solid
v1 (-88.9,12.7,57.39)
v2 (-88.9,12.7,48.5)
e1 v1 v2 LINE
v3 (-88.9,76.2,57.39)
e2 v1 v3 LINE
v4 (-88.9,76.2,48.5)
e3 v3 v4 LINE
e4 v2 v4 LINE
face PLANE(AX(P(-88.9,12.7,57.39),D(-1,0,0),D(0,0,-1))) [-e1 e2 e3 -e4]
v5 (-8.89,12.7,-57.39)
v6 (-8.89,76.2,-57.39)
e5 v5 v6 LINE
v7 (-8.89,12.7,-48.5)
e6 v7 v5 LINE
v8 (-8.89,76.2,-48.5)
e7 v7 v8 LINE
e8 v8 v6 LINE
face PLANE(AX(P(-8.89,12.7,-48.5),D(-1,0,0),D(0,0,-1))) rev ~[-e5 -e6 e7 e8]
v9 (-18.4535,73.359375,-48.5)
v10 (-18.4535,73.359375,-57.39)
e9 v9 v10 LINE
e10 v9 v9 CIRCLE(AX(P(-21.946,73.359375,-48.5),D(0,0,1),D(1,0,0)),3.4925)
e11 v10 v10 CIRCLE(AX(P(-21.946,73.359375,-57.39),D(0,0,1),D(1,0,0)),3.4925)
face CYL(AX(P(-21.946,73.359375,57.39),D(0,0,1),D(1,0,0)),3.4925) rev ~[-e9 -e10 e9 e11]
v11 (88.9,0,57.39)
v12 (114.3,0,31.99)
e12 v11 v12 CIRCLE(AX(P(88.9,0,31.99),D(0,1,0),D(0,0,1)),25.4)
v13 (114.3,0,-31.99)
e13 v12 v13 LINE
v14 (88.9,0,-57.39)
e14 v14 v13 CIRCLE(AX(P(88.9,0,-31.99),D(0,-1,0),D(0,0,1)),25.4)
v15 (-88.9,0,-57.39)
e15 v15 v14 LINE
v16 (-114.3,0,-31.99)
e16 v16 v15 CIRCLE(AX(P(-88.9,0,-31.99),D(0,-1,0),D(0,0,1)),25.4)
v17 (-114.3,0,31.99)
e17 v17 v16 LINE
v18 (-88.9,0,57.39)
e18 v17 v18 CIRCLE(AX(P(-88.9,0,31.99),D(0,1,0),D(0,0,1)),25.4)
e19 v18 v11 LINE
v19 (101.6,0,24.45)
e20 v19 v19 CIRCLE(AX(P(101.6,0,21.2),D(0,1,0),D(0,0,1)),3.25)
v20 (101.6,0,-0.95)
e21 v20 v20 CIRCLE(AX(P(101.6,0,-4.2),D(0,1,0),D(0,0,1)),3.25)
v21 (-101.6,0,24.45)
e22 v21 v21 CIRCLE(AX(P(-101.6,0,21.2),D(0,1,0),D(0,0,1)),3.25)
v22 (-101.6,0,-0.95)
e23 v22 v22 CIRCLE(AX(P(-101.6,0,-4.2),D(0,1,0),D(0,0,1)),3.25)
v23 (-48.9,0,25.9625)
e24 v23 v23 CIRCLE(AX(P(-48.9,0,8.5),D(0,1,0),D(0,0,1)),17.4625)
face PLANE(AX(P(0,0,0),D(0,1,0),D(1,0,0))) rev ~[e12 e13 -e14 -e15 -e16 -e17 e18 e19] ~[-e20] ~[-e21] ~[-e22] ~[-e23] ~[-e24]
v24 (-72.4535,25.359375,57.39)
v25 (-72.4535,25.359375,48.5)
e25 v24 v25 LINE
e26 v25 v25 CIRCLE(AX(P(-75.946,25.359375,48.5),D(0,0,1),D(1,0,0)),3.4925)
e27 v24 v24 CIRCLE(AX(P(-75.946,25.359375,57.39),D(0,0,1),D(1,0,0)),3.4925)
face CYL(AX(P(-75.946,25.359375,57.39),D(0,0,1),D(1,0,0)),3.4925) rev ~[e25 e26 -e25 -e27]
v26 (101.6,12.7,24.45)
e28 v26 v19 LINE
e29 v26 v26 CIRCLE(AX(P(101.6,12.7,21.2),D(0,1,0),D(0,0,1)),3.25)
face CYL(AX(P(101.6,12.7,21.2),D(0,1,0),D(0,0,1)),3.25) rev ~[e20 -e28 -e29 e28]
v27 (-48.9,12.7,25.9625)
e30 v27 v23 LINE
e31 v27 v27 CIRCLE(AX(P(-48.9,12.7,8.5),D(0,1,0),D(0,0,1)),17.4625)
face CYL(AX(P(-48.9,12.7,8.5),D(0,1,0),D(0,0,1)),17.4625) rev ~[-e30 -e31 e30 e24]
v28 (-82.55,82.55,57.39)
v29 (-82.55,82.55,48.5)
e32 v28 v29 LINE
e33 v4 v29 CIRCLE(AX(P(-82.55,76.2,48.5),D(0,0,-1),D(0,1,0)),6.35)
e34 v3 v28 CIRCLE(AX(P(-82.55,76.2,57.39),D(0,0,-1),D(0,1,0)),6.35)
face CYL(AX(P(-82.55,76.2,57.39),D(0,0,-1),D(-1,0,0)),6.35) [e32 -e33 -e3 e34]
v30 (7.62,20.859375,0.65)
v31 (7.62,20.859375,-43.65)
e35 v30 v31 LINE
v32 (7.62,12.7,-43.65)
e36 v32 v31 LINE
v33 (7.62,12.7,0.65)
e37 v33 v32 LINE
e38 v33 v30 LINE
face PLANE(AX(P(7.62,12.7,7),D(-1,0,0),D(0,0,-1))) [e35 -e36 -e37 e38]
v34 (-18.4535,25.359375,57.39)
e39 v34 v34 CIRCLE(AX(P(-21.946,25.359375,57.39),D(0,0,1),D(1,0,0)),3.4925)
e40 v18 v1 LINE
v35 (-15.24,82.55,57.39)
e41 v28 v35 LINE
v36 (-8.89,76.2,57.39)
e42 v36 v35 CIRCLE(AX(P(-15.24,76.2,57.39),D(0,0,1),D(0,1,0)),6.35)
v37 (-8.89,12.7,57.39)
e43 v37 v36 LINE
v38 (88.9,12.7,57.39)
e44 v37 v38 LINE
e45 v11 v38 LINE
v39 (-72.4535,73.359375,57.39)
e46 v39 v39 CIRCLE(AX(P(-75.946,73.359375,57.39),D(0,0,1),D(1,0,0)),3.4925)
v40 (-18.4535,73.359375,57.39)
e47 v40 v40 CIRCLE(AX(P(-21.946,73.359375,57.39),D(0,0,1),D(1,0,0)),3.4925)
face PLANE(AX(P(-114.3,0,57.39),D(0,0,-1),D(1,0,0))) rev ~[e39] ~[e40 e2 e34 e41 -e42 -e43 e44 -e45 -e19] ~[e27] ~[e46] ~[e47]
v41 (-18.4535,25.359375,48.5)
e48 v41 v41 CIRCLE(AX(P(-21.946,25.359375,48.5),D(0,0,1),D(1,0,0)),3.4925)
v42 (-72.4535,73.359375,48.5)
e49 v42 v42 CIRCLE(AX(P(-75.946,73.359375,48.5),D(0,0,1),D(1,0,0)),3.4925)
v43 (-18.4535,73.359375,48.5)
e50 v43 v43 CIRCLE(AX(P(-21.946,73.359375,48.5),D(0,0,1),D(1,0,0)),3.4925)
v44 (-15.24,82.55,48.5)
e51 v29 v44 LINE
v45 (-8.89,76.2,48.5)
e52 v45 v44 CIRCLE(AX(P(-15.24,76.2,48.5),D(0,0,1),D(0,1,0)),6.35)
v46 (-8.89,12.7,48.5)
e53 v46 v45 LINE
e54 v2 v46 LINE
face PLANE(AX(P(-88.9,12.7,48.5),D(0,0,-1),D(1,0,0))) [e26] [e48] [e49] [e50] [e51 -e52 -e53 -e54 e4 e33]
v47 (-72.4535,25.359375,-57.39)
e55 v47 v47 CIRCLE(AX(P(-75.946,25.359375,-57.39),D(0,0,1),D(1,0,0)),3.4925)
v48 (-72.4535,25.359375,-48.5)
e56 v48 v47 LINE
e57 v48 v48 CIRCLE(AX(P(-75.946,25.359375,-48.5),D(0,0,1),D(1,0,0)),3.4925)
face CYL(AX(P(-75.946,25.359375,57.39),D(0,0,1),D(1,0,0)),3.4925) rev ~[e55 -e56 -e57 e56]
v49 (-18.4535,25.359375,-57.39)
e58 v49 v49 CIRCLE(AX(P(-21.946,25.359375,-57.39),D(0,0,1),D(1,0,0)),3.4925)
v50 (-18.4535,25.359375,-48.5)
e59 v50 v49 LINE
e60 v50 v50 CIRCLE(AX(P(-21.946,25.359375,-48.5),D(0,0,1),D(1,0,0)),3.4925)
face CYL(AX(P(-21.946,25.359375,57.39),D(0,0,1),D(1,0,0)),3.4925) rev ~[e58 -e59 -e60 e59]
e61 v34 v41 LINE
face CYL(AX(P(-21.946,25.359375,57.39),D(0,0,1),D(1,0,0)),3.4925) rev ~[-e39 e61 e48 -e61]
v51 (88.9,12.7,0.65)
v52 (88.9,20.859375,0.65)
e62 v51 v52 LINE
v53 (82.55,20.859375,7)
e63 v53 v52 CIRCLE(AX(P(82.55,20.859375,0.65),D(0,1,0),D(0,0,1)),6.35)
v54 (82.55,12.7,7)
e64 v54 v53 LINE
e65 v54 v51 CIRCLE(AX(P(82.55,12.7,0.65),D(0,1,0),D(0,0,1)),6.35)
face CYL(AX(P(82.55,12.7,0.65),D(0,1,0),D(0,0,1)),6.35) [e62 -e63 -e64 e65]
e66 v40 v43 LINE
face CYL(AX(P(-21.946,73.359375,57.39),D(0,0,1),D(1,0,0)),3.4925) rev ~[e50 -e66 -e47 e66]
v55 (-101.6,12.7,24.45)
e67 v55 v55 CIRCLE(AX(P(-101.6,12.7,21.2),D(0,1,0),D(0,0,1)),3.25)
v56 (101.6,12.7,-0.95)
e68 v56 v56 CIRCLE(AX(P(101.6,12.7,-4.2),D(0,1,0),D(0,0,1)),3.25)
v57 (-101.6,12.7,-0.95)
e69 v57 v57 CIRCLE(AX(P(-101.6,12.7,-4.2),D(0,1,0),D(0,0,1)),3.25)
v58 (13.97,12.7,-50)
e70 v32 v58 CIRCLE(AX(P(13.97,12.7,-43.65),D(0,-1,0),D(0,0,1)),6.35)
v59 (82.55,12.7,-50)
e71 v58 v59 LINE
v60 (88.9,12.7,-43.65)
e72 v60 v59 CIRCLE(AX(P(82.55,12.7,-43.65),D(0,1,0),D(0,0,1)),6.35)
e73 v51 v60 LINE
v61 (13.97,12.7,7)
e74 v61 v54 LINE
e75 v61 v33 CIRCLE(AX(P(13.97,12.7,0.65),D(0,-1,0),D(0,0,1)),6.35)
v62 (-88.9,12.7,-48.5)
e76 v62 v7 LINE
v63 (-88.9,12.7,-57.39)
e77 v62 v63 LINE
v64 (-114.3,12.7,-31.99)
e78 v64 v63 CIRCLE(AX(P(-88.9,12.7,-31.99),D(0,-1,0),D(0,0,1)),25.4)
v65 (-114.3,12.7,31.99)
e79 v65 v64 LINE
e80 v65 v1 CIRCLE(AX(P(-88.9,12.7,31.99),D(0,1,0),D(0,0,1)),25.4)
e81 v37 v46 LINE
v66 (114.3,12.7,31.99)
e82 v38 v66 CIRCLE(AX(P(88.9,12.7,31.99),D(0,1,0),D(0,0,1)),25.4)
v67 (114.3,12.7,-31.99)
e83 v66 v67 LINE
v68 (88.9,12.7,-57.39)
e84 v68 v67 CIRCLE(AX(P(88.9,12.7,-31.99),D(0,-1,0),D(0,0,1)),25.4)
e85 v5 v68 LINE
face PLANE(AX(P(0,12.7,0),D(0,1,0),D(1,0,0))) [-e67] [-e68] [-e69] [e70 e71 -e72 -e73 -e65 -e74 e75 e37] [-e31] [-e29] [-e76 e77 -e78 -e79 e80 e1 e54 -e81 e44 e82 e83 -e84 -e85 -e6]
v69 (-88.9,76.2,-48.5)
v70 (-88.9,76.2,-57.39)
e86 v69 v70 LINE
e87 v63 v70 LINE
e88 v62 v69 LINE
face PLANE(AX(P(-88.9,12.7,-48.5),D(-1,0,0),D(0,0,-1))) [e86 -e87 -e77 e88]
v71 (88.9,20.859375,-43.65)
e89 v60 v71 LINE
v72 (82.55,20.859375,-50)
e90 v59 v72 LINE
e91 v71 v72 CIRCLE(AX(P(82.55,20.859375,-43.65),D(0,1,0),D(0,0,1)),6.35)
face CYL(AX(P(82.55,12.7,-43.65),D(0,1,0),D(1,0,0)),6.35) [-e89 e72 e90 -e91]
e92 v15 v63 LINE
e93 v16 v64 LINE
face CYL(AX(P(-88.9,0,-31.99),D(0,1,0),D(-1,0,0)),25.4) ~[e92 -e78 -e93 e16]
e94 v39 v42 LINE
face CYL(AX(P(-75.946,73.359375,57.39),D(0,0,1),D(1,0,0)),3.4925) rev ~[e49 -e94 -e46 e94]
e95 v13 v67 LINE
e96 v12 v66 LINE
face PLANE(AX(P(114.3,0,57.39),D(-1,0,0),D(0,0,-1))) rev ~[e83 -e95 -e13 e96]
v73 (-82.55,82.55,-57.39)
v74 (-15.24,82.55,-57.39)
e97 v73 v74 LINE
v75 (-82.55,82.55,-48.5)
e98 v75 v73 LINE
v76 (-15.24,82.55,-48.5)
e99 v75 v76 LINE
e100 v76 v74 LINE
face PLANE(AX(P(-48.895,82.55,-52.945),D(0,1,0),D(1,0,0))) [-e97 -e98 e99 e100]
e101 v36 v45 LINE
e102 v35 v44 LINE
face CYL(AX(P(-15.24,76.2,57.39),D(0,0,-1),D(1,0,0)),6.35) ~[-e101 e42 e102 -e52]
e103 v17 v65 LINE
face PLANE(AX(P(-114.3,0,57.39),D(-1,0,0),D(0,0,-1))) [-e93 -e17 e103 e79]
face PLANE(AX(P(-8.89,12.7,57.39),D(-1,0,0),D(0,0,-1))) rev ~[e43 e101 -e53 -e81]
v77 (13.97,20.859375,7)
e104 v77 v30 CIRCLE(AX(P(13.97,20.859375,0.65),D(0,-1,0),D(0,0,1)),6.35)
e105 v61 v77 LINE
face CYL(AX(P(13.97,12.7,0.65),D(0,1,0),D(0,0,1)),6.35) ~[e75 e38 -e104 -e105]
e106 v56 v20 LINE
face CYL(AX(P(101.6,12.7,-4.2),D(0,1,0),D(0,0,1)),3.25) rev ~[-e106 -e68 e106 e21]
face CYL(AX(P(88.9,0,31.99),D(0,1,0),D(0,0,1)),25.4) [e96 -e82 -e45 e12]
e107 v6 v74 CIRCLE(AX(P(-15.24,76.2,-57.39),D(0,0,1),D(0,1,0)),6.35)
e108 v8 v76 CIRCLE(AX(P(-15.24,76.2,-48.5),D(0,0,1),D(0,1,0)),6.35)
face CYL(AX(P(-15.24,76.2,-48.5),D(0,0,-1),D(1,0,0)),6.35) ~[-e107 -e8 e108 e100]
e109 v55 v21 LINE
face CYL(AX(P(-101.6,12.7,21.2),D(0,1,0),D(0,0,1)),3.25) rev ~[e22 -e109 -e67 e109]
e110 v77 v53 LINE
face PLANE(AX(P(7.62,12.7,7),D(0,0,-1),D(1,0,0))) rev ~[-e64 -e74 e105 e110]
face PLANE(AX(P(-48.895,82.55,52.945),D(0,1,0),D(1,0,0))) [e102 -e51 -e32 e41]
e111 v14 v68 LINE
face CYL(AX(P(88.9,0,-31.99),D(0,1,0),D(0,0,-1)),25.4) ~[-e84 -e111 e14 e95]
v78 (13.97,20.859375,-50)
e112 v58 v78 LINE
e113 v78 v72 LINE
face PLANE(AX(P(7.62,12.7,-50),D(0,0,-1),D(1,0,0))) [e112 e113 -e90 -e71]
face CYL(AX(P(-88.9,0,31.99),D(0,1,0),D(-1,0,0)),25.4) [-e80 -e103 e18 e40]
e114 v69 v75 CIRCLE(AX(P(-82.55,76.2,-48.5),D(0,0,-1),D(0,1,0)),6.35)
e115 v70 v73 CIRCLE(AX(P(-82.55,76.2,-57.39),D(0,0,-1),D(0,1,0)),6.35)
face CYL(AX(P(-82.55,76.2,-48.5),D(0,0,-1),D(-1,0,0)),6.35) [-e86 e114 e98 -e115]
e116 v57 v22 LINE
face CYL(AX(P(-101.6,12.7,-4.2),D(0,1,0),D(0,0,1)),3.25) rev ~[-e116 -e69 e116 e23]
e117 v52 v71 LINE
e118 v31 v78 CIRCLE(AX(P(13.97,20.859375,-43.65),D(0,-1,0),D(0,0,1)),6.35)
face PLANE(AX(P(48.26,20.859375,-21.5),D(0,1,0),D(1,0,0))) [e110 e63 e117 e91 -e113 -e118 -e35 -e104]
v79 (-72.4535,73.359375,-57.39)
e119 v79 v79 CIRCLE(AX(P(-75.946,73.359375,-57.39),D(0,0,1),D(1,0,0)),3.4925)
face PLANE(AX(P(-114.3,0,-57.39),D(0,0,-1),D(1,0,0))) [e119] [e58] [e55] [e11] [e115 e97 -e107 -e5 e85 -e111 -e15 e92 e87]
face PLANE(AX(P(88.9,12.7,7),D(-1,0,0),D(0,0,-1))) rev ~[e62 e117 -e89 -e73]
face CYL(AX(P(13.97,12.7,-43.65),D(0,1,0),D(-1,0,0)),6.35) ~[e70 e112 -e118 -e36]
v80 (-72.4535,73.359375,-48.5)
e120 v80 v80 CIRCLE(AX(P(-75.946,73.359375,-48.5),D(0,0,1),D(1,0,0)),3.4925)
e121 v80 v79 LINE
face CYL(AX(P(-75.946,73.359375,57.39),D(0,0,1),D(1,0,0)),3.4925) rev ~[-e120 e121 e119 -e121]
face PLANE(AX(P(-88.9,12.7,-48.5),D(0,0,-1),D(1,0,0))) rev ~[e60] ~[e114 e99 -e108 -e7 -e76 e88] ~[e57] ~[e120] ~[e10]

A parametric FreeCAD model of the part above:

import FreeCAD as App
import Part
import Sketcher
from FreeCAD import Vector
Q = App.Units.Quantity


def edges_at(feature, points):
    """Names of the edges that pass closest to the given points."""
    edges = feature.Shape.Edges
    near = lambda p: min(range(len(edges)), key=lambda i: edges[i].distToShape(Part.Vertex(*p))[0])
    return sorted({f"Edge{near(p) + 1}" for p in points})


def add_polygon(sketch, points):
    """Adds a closed chain of lines whose ends are joined by coincident constraints."""
    first, n = sketch.GeometryCount, len(points)
    for a, b in zip(points, points[1:] + points[:1]):
        sketch.addGeometry(Part.LineSegment(App.Vector(*a, 0), App.Vector(*b, 0)), False)
    for i in range(n):
        sketch.addConstraint(Sketcher.Constraint("Coincident", first + i, 2, first + (i + 1) % n, 1))

doc = App.newDocument("Part")
body = doc.addObject("PartDesign::Body", "Body")

sketch1 = body.newObject("Sketcher::SketchObject", "Sketch")
sketch1.AttachmentSupport = (doc.getObject("XZ_Plane"), [""])
sketch1.MapMode = "FlatFace"
add_polygon(sketch1, [(-114, -57), (-114, 57), (114, 57), (114, -57)])
sketch1.addConstraint([
    Sketcher.Constraint("Vertical", 0),
    Sketcher.Constraint("Horizontal", 1),
    Sketcher.Constraint("Vertical", 2),
    Sketcher.Constraint("Horizontal", 3),
    Sketcher.Constraint("Symmetric", 0, 2, 2, 2, -1, 1),
    Sketcher.Constraint("DistanceX", 1, 1, 1, 2, Q("9 in")),
    Sketcher.Constraint("DistanceY", 0, 1, 0, 2, 114.78),
])
pad1 = body.newObject("PartDesign::Pad", "Pad")
pad1.Profile = sketch1
pad1.Length = Q("0.5 in")
pad1.Reversed = True

sketch2 = body.newObject("Sketcher::SketchObject", "Sketch001")
sketch2.AttachmentSupport = (doc.getObject("XZ_Plane"), [""])
sketch2.MapMode = "FlatFace"
sketch2.AttachmentOffset = App.Placement(Vector(0, 0, -0.5 * 25.4), App.Rotation())
add_polygon(sketch2, [(-89, -57), (-89, -48), (-9, -48), (-9, -57)])
add_polygon(sketch2, [(-89, 48), (-89, 57), (-9, 57), (-9, 48)])
sketch2.addConstraint([
    Sketcher.Constraint("Vertical", 0),
    Sketcher.Constraint("Horizontal", 1),
    Sketcher.Constraint("Vertical", 2),
    Sketcher.Constraint("Horizontal", 3),
    Sketcher.Constraint("Vertical", 4),
    Sketcher.Constraint("Horizontal", 5),
    Sketcher.Constraint("Vertical", 6),
    Sketcher.Constraint("Horizontal", 7),
    Sketcher.Constraint("Symmetric", 3, 2, 4, 2, -1),
    Sketcher.Constraint("Symmetric", 1, 2, 6, 2, -1),
    Sketcher.Constraint("DistanceX", 1, 1, 1, 2, Q("3.15 in")),
    Sketcher.Constraint("DistanceY", 0, 1, 0, 2, Q("0.35 in")),
    Sketcher.Constraint("DistanceX", 0, 2, -1, 1, Q("3.5 in")),
    Sketcher.Constraint("DistanceY", 0, 2, -1, 1, 48.5),
])
pad2 = body.newObject("PartDesign::Pad", "Pad001")
pad2.Profile = sketch2
pad2.Length = Q("2.75 in")
pad2.Reversed = True

sketch3 = body.newObject("Sketcher::SketchObject", "Sketch002")
sketch3.AttachmentSupport = (doc.getObject("XZ_Plane"), [""])
sketch3.MapMode = "FlatFace"
sketch3.AttachmentOffset = App.Placement(Vector(0, 0, -0.5 * 25.4), App.Rotation())
add_polygon(sketch3, [(8, -50), (8, 7), (89, 7), (89, -50)])
sketch3.addConstraint([
    Sketcher.Constraint("Vertical", 0),
    Sketcher.Constraint("Horizontal", 1),
    Sketcher.Constraint("Vertical", 2),
    Sketcher.Constraint("Horizontal", 3),
    Sketcher.Constraint("DistanceX", 1, 1, 1, 2, Q("3.2 in")),
    Sketcher.Constraint("DistanceX", -1, 1, 0, 2, Q("0.3 in")),
    Sketcher.Constraint("DistanceY", 0, 1, 0, 2, 57.0),
    Sketcher.Constraint("DistanceY", -1, 1, 0, 2, 7.0),
])
pad3 = body.newObject("PartDesign::Pad", "Pad002")
pad3.Profile = sketch3
pad3.Length = 8.159375
pad3.Reversed = True

sketch4 = body.newObject("Sketcher::SketchObject", "Sketch003")
sketch4.AttachmentSupport = (doc.getObject("XZ_Plane"), [""])
sketch4.MapMode = "FlatFace"
sketch4.AttachmentOffset = App.Placement(Vector(0, 0, -0.5 * 25.4), App.Rotation())
sketch4.addGeometry(Part.Circle(Vector(-49, 8, 0), Vector(0, 0, 1), 17), False)
sketch4.addConstraint([
    Sketcher.Constraint("Diameter", 0, Q("1.375 in")),
    Sketcher.Constraint("DistanceX", 0, 3, -1, 1, 48.9),
    Sketcher.Constraint("DistanceY", -1, 1, 0, 3, 8.5),
])
pocket1 = body.newObject("PartDesign::Pocket", "Pocket")
pocket1.Profile = sketch4
pocket1.Type = "ThroughAll"
pocket1.Reversed = True

sketch5 = body.newObject("Sketcher::SketchObject", "Sketch004")
sketch5.AttachmentSupport = (doc.getObject("XY_Plane"), [""])
sketch5.MapMode = "FlatFace"
sketch5.AttachmentOffset = App.Placement(Vector(0, 0, 57.39), App.Rotation())
sketch5.addGeometry([
    Part.Circle(Vector(-75.9, 73.4, 0), Vector(0, 0, 1), 3.5),
    Part.Circle(Vector(-21.9, 73.4, 0), Vector(0, 0, 1), 3.5),
    Part.Circle(Vector(-75.9, 25.4, 0), Vector(0, 0, 1), 3.5),
    Part.Circle(Vector(-21.9, 25.4, 0), Vector(0, 0, 1), 3.5),
], False)
sketch5.addConstraint([
    Sketcher.Constraint("Equal", 0, 1),
    Sketcher.Constraint("Equal", 1, 2),
    Sketcher.Constraint("Equal", 2, 3),
    Sketcher.Constraint("Horizontal", 0, 3, 1, 3),
    Sketcher.Constraint("Horizontal", 2, 3, 3, 3),
    Sketcher.Constraint("Vertical", 0, 3, 2, 3),
    Sketcher.Constraint("Vertical", 1, 3, 3, 3),
    Sketcher.Constraint("Diameter", 0, Q("0.275 in")),
    Sketcher.Constraint("DistanceX", 0, 3, -1, 1, Q("2.99 in")),
    Sketcher.Constraint("DistanceX", 1, 3, -1, 1, 21.946),
    Sketcher.Constraint("DistanceY", 2, 3, 0, 3, 48.0),
    Sketcher.Constraint("DistanceY", -1, 1, 0, 3, 73.359375),
])
pocket2 = body.newObject("PartDesign::Pocket", "Pocket001")
pocket2.Profile = sketch5
pocket2.Type = "ThroughAll"

sketch6 = body.newObject("Sketcher::SketchObject", "Sketch005")
sketch6.AttachmentSupport = (doc.getObject("XZ_Plane"), [""])
sketch6.MapMode = "FlatFace"
sketch6.AttachmentOffset = App.Placement(Vector(0, 0, -0.5 * 25.4), App.Rotation())
sketch6.addGeometry([
    Part.Circle(Vector(-48.9, 8.5, 0), Vector(0, 0, 1), 17.5),
    Part.Circle(Vector(-101.6, 21.2, 0), Vector(0, 0, 1), 3.2),
    Part.Circle(Vector(-101.6, -4.2, 0), Vector(0, 0, 1), 3.2),
    Part.Circle(Vector(101.6, 21.2, 0), Vector(0, 0, 1), 3.2),
    Part.Circle(Vector(101.6, -4.2, 0), Vector(0, 0, 1), 3.2),
], False)
sketch6.addConstraint([
    Sketcher.Constraint("Equal", 1, 2),
    Sketcher.Constraint("Equal", 2, 3),
    Sketcher.Constraint("Equal", 3, 4),
    Sketcher.Constraint("Symmetric", 1, 3, 3, 3, -2),
    Sketcher.Constraint("Symmetric", 2, 3, 4, 3, -2),
    Sketcher.Constraint("Vertical", 1, 3, 2, 3),
    Sketcher.Constraint("Diameter", 0, Q("1.375 in")),
    Sketcher.Constraint("DistanceX", 1, 3, -1, 1, Q("4 in")),
    Sketcher.Constraint("DistanceY", 2, 3, 1, 3, Q("1 in")),
    Sketcher.Constraint("DistanceY", 0, 3, 1, 3, Q("0.5 in")),
    Sketcher.Constraint("Diameter", 1, 6.5),
    Sketcher.Constraint("DistanceX", 0, 3, -1, 1, 48.9),
    Sketcher.Constraint("DistanceY", -1, 1, 0, 3, 8.5),
])
pocket3 = body.newObject("PartDesign::Pocket", "Pocket002")
pocket3.Profile = sketch6
pocket3.Type = "ThroughAll"
pocket3.Reversed = True
doc.recompute()

fillet = body.newObject("PartDesign::Fillet", "Fillet")
fillet.Base = (pocket3, edges_at(pocket3, [
    (114.3, 6.35, 57.39),
    (-114.3, 6.35, 57.39),
    (-114.3, 6.35, -57.39),
    (114.3, 6.35, -57.39),
]))
fillet.Radius = Q("1 in")
doc.recompute()

fillet2 = body.newObject("PartDesign::Fillet", "Fillet001")
fillet2.Base = (fillet, edges_at(fillet, [
    (-88.9, 82.55, -52.945),
    (-8.89, 82.55, -52.945),
    (-88.9, 82.55, 52.945),
    (-8.89, 82.55, 52.945),
]))
fillet2.Radius = Q("0.25 in")
doc.recompute()

fillet3 = body.newObject("PartDesign::Fillet", "Fillet002")
fillet3.Base = (fillet2, edges_at(fillet2, [
    (88.9, 16.78, 7),
    (88.9, 16.78, -50),
    (7.62, 16.78, -50),
    (7.62, 16.78, 7),
]))
fillet3.Radius = Q("0.25 in")

doc.recompute()
